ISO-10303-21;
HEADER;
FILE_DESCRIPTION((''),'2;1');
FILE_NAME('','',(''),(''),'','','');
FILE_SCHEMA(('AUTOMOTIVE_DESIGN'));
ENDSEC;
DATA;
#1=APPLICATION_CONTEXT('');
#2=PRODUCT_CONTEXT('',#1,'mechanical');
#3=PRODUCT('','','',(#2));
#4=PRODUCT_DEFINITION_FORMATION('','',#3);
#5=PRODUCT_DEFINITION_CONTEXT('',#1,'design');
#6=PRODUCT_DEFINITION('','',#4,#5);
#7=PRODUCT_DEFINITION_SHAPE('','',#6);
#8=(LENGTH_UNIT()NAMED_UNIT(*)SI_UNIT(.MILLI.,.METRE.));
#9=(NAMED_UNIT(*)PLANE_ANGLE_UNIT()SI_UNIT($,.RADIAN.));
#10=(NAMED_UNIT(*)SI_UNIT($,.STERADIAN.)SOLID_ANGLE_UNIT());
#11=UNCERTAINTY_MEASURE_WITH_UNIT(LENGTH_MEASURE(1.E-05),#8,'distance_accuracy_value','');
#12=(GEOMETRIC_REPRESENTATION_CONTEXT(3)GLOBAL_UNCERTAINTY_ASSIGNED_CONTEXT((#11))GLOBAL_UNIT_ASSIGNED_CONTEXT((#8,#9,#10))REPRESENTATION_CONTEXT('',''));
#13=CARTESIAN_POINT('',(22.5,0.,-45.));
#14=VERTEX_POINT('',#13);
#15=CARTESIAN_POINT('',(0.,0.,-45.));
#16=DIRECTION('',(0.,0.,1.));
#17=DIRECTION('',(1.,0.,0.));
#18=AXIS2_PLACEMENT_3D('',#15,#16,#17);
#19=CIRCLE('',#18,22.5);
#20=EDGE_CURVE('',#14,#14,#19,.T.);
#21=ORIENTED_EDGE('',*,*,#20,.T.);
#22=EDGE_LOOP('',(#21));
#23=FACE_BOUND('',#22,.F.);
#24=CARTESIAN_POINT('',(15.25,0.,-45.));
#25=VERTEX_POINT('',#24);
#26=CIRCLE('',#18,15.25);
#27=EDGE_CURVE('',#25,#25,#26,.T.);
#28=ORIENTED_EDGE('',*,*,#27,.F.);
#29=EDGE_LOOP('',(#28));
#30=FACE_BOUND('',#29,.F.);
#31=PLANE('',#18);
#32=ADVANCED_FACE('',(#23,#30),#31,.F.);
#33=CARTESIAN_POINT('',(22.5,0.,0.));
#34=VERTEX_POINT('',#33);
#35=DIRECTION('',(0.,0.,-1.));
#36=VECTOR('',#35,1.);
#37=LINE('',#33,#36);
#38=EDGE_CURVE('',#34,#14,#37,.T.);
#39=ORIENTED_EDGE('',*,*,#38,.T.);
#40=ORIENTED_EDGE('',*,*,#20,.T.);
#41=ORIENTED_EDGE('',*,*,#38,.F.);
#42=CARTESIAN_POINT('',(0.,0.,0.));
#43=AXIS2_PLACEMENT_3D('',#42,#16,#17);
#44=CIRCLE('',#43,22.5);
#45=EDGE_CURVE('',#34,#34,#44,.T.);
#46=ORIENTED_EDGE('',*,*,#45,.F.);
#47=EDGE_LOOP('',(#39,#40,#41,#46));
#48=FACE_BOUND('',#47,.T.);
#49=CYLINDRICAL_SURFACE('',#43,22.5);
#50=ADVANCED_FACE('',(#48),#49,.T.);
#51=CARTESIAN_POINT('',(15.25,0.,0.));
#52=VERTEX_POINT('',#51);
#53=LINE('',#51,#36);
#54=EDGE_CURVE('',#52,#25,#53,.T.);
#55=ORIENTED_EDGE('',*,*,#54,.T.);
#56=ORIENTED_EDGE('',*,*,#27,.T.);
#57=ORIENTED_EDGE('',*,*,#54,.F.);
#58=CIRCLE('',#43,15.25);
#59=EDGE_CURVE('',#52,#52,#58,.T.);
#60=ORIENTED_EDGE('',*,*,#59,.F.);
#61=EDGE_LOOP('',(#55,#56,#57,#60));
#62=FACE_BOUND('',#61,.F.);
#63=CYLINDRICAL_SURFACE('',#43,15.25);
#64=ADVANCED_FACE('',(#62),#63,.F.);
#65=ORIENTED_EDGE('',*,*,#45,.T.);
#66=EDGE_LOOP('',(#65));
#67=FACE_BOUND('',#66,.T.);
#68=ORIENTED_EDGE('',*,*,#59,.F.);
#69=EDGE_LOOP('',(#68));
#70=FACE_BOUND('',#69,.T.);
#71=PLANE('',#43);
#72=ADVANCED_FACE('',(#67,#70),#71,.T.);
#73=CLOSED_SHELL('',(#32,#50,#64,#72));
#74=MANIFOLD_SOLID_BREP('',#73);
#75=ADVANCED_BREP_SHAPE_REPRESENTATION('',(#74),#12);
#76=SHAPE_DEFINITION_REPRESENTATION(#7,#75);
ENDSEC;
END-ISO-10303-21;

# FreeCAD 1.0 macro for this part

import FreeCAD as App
import Part
import Sketcher

doc = App.newDocument("Part")
body = doc.addObject("PartDesign::Body", "Body")

# Sketch on XY plane
sketch1 = body.newObject("Sketcher::SketchObject", "Sketch")
sketch1.AttachmentSupport = (doc.getObject("XY_Plane"), [""])
sketch1.MapMode = "FlatFace"
sketch1.addGeometry(Part.Circle(App.Vector(0, 0, 0), App.Vector(0, 0, 1), 22), False)
sketch1.addConstraint(Sketcher.Constraint("Coincident", 0, 3, -1, 1))
sketch1.addConstraint(Sketcher.Constraint("Diameter", 0, 45.0))
pad1 = body.newObject("PartDesign::Pad", "Pad")
pad1.Profile = sketch1
pad1.Length = 45
pad1.Reversed = True

# Sketch on XY plane
sketch2 = body.newObject("Sketcher::SketchObject", "Sketch001")
sketch2.AttachmentSupport = (doc.getObject("XY_Plane"), [""])
sketch2.MapMode = "FlatFace"
sketch2.addGeometry(Part.Circle(App.Vector(0, 0, 0), App.Vector(0, 0, 1), 15), False)
sketch2.addConstraint(Sketcher.Constraint("Coincident", 0, 3, -1, 1))
sketch2.addConstraint(Sketcher.Constraint("Diameter", 0, 30.5))
pocket1 = body.newObject("PartDesign::Pocket", "Pocket")
pocket1.Profile = sketch2
pocket1.Length = 45

doc.recompute()
